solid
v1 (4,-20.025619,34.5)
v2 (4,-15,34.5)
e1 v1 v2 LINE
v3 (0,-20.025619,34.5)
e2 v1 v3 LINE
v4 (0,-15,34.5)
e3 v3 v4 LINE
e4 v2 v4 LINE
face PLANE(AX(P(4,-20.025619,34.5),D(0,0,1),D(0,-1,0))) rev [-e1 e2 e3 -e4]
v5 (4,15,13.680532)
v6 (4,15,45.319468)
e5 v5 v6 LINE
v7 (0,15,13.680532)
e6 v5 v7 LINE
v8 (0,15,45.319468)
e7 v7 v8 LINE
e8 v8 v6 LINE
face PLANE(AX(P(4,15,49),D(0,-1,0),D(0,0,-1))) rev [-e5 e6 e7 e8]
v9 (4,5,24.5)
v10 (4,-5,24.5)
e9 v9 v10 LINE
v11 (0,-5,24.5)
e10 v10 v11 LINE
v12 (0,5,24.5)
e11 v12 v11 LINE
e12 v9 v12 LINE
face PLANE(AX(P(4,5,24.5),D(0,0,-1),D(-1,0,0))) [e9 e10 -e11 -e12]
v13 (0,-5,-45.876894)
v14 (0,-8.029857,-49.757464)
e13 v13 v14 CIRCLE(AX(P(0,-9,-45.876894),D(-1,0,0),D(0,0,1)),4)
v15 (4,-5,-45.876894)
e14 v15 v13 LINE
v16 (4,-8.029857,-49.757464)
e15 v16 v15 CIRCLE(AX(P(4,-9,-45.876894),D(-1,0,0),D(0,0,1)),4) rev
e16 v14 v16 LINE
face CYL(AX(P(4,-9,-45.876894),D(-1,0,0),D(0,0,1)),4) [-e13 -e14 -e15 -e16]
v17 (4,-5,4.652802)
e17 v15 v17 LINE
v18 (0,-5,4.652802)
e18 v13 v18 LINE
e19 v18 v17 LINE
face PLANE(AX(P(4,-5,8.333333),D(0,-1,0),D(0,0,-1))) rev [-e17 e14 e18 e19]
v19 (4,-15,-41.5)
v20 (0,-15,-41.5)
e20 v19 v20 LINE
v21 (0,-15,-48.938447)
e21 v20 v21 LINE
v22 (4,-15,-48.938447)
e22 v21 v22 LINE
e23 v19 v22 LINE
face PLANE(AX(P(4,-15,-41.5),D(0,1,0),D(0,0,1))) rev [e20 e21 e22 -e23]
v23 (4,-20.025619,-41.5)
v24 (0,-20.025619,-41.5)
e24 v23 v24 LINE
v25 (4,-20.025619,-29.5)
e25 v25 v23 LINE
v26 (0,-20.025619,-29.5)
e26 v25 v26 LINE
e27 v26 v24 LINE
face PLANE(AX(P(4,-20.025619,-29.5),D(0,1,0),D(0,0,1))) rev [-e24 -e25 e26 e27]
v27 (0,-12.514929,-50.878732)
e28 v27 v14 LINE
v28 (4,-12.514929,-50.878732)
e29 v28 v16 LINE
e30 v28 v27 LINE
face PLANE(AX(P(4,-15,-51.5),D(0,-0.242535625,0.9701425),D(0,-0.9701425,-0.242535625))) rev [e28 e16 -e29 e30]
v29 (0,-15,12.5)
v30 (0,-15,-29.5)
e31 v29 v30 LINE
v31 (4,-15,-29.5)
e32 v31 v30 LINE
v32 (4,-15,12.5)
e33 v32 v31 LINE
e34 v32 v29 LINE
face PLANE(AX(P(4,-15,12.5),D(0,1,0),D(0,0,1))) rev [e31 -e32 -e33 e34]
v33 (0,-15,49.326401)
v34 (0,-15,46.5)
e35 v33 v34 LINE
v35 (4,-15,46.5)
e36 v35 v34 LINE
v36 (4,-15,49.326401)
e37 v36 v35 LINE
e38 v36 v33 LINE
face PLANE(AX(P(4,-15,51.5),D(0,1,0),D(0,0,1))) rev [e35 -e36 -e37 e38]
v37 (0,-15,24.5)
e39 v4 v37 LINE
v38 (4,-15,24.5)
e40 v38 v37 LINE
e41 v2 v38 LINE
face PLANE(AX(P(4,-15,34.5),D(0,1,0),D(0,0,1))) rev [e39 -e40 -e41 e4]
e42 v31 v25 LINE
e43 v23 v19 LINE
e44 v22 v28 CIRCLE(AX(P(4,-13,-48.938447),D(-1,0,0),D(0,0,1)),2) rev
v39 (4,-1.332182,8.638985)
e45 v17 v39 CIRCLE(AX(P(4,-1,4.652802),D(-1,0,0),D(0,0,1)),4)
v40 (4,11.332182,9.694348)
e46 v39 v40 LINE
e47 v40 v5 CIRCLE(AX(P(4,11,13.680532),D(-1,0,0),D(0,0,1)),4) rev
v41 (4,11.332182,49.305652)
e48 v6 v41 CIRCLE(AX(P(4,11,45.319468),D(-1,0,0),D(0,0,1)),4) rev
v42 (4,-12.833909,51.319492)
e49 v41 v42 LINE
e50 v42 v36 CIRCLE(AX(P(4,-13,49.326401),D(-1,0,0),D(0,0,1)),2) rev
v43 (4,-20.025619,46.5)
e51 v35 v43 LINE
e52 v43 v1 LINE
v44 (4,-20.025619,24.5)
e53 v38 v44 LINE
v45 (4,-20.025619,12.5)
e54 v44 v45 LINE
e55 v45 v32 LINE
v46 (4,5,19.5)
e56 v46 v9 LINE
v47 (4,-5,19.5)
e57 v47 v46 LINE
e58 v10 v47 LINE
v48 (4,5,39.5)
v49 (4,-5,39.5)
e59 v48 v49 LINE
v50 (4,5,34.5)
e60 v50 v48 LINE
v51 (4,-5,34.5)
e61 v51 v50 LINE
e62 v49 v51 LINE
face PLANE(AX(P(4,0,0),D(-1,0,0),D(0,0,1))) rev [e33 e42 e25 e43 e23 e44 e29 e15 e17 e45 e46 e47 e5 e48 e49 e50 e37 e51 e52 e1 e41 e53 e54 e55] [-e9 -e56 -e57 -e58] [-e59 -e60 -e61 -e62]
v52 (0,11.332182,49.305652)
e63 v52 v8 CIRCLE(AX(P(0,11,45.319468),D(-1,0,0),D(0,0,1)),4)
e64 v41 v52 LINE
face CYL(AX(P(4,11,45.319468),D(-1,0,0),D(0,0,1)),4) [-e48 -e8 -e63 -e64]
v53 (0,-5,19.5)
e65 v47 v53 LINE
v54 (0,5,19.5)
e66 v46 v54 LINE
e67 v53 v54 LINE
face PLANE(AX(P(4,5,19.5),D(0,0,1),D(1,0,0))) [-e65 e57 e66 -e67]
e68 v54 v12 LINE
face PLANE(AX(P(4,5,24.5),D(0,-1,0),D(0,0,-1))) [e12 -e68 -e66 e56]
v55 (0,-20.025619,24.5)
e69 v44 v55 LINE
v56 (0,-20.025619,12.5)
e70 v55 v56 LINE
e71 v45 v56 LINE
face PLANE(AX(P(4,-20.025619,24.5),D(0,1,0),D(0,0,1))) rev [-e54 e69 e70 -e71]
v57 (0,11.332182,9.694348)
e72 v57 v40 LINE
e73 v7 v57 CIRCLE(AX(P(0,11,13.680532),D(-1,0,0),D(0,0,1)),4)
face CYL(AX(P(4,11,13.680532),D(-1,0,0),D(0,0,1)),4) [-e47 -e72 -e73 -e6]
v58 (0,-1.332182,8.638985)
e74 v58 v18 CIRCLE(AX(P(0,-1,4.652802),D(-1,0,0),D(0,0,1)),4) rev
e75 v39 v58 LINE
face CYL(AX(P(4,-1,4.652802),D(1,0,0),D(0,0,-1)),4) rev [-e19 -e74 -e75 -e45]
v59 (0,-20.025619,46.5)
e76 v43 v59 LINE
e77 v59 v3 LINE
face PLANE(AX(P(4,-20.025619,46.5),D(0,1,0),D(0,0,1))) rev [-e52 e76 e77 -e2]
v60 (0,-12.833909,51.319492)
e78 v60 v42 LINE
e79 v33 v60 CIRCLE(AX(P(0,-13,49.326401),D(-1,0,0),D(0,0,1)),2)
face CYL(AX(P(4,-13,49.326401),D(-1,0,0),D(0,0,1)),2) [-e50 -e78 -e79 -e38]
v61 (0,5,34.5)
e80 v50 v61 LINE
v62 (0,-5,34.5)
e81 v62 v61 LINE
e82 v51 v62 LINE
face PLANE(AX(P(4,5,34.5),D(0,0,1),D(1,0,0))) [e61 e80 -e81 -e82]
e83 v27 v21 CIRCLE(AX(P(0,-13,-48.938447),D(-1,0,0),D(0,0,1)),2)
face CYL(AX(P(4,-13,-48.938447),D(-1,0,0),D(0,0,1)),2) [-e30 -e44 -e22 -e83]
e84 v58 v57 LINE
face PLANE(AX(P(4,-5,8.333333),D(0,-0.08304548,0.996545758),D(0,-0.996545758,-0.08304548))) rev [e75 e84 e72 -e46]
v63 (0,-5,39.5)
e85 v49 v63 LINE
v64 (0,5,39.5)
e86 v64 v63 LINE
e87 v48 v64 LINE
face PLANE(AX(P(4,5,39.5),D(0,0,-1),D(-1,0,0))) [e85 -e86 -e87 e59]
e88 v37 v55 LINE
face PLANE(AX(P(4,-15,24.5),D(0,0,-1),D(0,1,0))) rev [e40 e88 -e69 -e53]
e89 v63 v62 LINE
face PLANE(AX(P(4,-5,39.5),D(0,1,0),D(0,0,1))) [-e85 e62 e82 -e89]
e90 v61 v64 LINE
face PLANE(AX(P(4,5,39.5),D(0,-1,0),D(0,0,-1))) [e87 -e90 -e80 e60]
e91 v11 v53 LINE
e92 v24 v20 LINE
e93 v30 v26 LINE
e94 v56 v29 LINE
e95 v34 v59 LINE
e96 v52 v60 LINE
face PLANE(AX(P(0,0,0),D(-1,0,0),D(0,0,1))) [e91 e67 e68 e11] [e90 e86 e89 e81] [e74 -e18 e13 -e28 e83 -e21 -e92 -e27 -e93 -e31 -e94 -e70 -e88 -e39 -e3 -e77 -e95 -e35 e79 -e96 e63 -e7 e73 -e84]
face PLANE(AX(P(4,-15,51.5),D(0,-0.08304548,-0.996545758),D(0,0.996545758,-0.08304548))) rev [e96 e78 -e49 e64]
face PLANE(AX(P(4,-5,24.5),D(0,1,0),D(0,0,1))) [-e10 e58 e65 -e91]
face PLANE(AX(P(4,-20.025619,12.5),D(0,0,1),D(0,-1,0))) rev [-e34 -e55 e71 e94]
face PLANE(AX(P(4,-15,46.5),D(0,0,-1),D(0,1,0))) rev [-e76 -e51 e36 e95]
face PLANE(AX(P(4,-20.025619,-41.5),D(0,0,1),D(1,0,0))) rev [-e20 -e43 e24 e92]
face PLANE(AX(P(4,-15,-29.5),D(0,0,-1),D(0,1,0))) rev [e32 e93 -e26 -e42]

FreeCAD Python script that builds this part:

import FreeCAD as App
import Part
import Sketcher


def edges_at(feature, points):
    """Names of the edges that pass closest to the given points."""
    edges = feature.Shape.Edges
    near = lambda p: min(range(len(edges)), key=lambda i: edges[i].distToShape(Part.Vertex(*p))[0])
    return sorted({f"Edge{near(p) + 1}" for p in points})

doc = App.newDocument("Part")
body = doc.addObject("PartDesign::Body", "Body")

sketch1 = body.newObject("Sketcher::SketchObject", "Sketch")
sketch1.AttachmentSupport = (doc.getObject("YZ_Plane"), [""])
sketch1.MapMode = "FlatFace"
sketch1.addGeometry(Part.LineSegment(App.Vector(-15, 46.5, 0), App.Vector(-20.025619, 46.5, 0)), False)
sketch1.addGeometry(Part.LineSegment(App.Vector(-20.025619, 46.5, 0), App.Vector(-20.025619, 34.5, 0)), False)
sketch1.addGeometry(Part.LineSegment(App.Vector(-20.025619, 34.5, 0), App.Vector(-15, 34.5, 0)), False)
sketch1.addGeometry(Part.LineSegment(App.Vector(-15, 34.5, 0), App.Vector(-15, 24.5, 0)), False)
sketch1.addGeometry(Part.LineSegment(App.Vector(-15, 24.5, 0), App.Vector(-20.025619, 24.5, 0)), False)
sketch1.addGeometry(Part.LineSegment(App.Vector(-20.025619, 24.5, 0), App.Vector(-20.025619, 12.5, 0)), False)
sketch1.addGeometry(Part.LineSegment(App.Vector(-20.025619, 12.5, 0), App.Vector(-15, 12.5, 0)), False)
sketch1.addGeometry(Part.LineSegment(App.Vector(-15, 12.5, 0), App.Vector(-15, -29.5, 0)), False)
sketch1.addGeometry(Part.LineSegment(App.Vector(-15, -29.5, 0), App.Vector(-20.025619, -29.5, 0)), False)
sketch1.addGeometry(Part.LineSegment(App.Vector(-20.025619, -29.5, 0), App.Vector(-20.025619, -41.5, 0)), False)
sketch1.addGeometry(Part.LineSegment(App.Vector(-20.025619, -41.5, 0), App.Vector(-15, -41.5, 0)), False)
sketch1.addGeometry(Part.LineSegment(App.Vector(-15, -41.5, 0), App.Vector(-15, -51.5, 0)), False)
sketch1.addGeometry(Part.LineSegment(App.Vector(-15, -51.5, 0), App.Vector(-5, -49, 0)), False)
sketch1.addGeometry(Part.LineSegment(App.Vector(-5, -49, 0), App.Vector(-5, 8.333333, 0)), False)
sketch1.addGeometry(Part.LineSegment(App.Vector(-5, 8.333333, 0), App.Vector(15, 10, 0)), False)
sketch1.addGeometry(Part.LineSegment(App.Vector(15, 10, 0), App.Vector(15, 49, 0)), False)
sketch1.addGeometry(Part.LineSegment(App.Vector(15, 49, 0), App.Vector(-15, 51.5, 0)), False)
sketch1.addGeometry(Part.LineSegment(App.Vector(-15, 51.5, 0), App.Vector(-15, 46.5, 0)), False)
sketch1.addGeometry(Part.LineSegment(App.Vector(-5, 34.5, 0), App.Vector(-5, 39.5, 0)), False)
sketch1.addGeometry(Part.LineSegment(App.Vector(-5, 39.5, 0), App.Vector(5, 39.5, 0)), False)
sketch1.addGeometry(Part.LineSegment(App.Vector(5, 39.5, 0), App.Vector(5, 34.5, 0)), False)
sketch1.addGeometry(Part.LineSegment(App.Vector(5, 34.5, 0), App.Vector(-5, 34.5, 0)), False)
sketch1.addGeometry(Part.LineSegment(App.Vector(-5, 19.5, 0), App.Vector(-5, 24.5, 0)), False)
sketch1.addGeometry(Part.LineSegment(App.Vector(-5, 24.5, 0), App.Vector(5, 24.5, 0)), False)
sketch1.addGeometry(Part.LineSegment(App.Vector(5, 24.5, 0), App.Vector(5, 19.5, 0)), False)
sketch1.addGeometry(Part.LineSegment(App.Vector(5, 19.5, 0), App.Vector(-5, 19.5, 0)), False)
sketch1.addConstraint(Sketcher.Constraint("Coincident", 0, 2, 1, 1))
sketch1.addConstraint(Sketcher.Constraint("Coincident", 1, 2, 2, 1))
sketch1.addConstraint(Sketcher.Constraint("Coincident", 2, 2, 3, 1))
sketch1.addConstraint(Sketcher.Constraint("Coincident", 3, 2, 4, 1))
sketch1.addConstraint(Sketcher.Constraint("Coincident", 4, 2, 5, 1))
sketch1.addConstraint(Sketcher.Constraint("Coincident", 5, 2, 6, 1))
sketch1.addConstraint(Sketcher.Constraint("Coincident", 6, 2, 7, 1))
sketch1.addConstraint(Sketcher.Constraint("Coincident", 7, 2, 8, 1))
sketch1.addConstraint(Sketcher.Constraint("Coincident", 8, 2, 9, 1))
sketch1.addConstraint(Sketcher.Constraint("Coincident", 9, 2, 10, 1))
sketch1.addConstraint(Sketcher.Constraint("Coincident", 10, 2, 11, 1))
sketch1.addConstraint(Sketcher.Constraint("Coincident", 11, 2, 12, 1))
sketch1.addConstraint(Sketcher.Constraint("Coincident", 12, 2, 13, 1))
sketch1.addConstraint(Sketcher.Constraint("Coincident", 13, 2, 14, 1))
sketch1.addConstraint(Sketcher.Constraint("Coincident", 14, 2, 15, 1))
sketch1.addConstraint(Sketcher.Constraint("Coincident", 15, 2, 16, 1))
sketch1.addConstraint(Sketcher.Constraint("Coincident", 16, 2, 17, 1))
sketch1.addConstraint(Sketcher.Constraint("Coincident", 17, 2, 0, 1))
sketch1.addConstraint(Sketcher.Constraint("Coincident", 18, 2, 19, 1))
sketch1.addConstraint(Sketcher.Constraint("Coincident", 19, 2, 20, 1))
sketch1.addConstraint(Sketcher.Constraint("Coincident", 20, 2, 21, 1))
sketch1.addConstraint(Sketcher.Constraint("Coincident", 21, 2, 18, 1))
sketch1.addConstraint(Sketcher.Constraint("Coincident", 22, 2, 23, 1))
sketch1.addConstraint(Sketcher.Constraint("Coincident", 23, 2, 24, 1))
sketch1.addConstraint(Sketcher.Constraint("Coincident", 24, 2, 25, 1))
sketch1.addConstraint(Sketcher.Constraint("Coincident", 25, 2, 22, 1))
sketch1.addConstraint(Sketcher.Constraint("Horizontal", 0))
sketch1.addConstraint(Sketcher.Constraint("Vertical", 1))
sketch1.addConstraint(Sketcher.Constraint("Horizontal", 2))
sketch1.addConstraint(Sketcher.Constraint("Vertical", 3))
sketch1.addConstraint(Sketcher.Constraint("Horizontal", 4))
sketch1.addConstraint(Sketcher.Constraint("Vertical", 5))
sketch1.addConstraint(Sketcher.Constraint("Horizontal", 6))
sketch1.addConstraint(Sketcher.Constraint("Vertical", 7))
sketch1.addConstraint(Sketcher.Constraint("Horizontal", 8))
sketch1.addConstraint(Sketcher.Constraint("Vertical", 9))
sketch1.addConstraint(Sketcher.Constraint("Horizontal", 10))
sketch1.addConstraint(Sketcher.Constraint("Vertical", 11))
sketch1.addConstraint(Sketcher.Constraint("Vertical", 13))
sketch1.addConstraint(Sketcher.Constraint("Vertical", 15))
sketch1.addConstraint(Sketcher.Constraint("Vertical", 17))
sketch1.addConstraint(Sketcher.Constraint("Vertical", 18))
sketch1.addConstraint(Sketcher.Constraint("Horizontal", 19))
sketch1.addConstraint(Sketcher.Constraint("Vertical", 20))
sketch1.addConstraint(Sketcher.Constraint("Horizontal", 21))
sketch1.addConstraint(Sketcher.Constraint("Vertical", 22))
sketch1.addConstraint(Sketcher.Constraint("Horizontal", 23))
sketch1.addConstraint(Sketcher.Constraint("Vertical", 24))
sketch1.addConstraint(Sketcher.Constraint("Horizontal", 25))
sketch1.addConstraint(Sketcher.Constraint("Symmetric", 11, 2, 16, 2, -1))
sketch1.addConstraint(Sketcher.Constraint("Horizontal", 2, 2, 20, 2))
sketch1.addConstraint(Sketcher.Constraint("Horizontal", 4, 2, 22, 2))
sketch1.addConstraint(Sketcher.Constraint("Vertical", 1, 2, 4, 2))
sketch1.addConstraint(Sketcher.Constraint("Vertical", 3, 2, 6, 2))
sketch1.addConstraint(Sketcher.Constraint("Vertical", 5, 2, 8, 2))
sketch1.addConstraint(Sketcher.Constraint("Vertical", 7, 2, 10, 2))
sketch1.addConstraint(Sketcher.Constraint("Vertical", 13, 2, 18, 2))
sketch1.addConstraint(Sketcher.Constraint("Vertical", 21, 2, 22, 2))
sketch1.addConstraint(Sketcher.Constraint("Vertical", 20, 2, 23, 2))
sketch1.addConstraint(Sketcher.Constraint("Equal", 25, 3))
sketch1.addConstraint(Sketcher.Constraint("Equal", 1, 5))
sketch1.addConstraint(Sketcher.Constraint("Equal", 5, 9))
sketch1.addConstraint(Sketcher.Constraint("Equal", 3, 11))
sketch1.addConstraint(Sketcher.Constraint("Equal", 17, 18))
sketch1.addConstraint(Sketcher.Constraint("Equal", 20, 22))
sketch1.addConstraint(Sketcher.Constraint("DistanceX", 19, 1, 19, 2, 10.0))
sketch1.addConstraint(Sketcher.Constraint("DistanceY", 1, 2, 1, 1, 12.0))
sketch1.addConstraint(Sketcher.Constraint("DistanceY", 7, 2, 7, 1, 42.0))
sketch1.addConstraint(Sketcher.Constraint("DistanceY", 15, 1, 15, 2, 39.0))
sketch1.addConstraint(Sketcher.Constraint("DistanceY", 17, 2, 17, 1, 5.0))
sketch1.addConstraint(Sketcher.Constraint("DistanceX", 2, 2, -1, 1, 15.0))
sketch1.addConstraint(Sketcher.Constraint("DistanceX", 12, 2, -1, 1, 5.0))
sketch1.addConstraint(Sketcher.Constraint("DistanceY", 12, 2, -1, 1, 49.0))
sketch1.addConstraint(Sketcher.Constraint("DistanceX", -1, 1, 14, 2, 15.0))
sketch1.addConstraint(Sketcher.Constraint("DistanceY", -1, 1, 14, 2, 10.0))
sketch1.addConstraint(Sketcher.Constraint("DistanceX", 0, 2, 0, 1, 5.025619))
sketch1.addConstraint(Sketcher.Constraint("DistanceY", 13, 1, 13, 2, 57.333333))
pad1 = body.newObject("PartDesign::Pad", "Pad")
pad1.Profile = sketch1
pad1.Length = 4
doc.recompute()

fillet = body.newObject("PartDesign::Fillet", "Fillet")
fillet.Base = (pad1, edges_at(pad1, [
    (2, 15, 49),
    (2, 15, 10),
    (2, -5, 8.333),
    (2, -5, -49),
]))
fillet.Radius = 4
doc.recompute()

fillet2 = body.newObject("PartDesign::Fillet", "Fillet001")
fillet2.Base = (fillet, edges_at(fillet, [(2, -15, 51.5), (2, -15, -51.5)]))
fillet2.Radius = 2

doc.recompute()
